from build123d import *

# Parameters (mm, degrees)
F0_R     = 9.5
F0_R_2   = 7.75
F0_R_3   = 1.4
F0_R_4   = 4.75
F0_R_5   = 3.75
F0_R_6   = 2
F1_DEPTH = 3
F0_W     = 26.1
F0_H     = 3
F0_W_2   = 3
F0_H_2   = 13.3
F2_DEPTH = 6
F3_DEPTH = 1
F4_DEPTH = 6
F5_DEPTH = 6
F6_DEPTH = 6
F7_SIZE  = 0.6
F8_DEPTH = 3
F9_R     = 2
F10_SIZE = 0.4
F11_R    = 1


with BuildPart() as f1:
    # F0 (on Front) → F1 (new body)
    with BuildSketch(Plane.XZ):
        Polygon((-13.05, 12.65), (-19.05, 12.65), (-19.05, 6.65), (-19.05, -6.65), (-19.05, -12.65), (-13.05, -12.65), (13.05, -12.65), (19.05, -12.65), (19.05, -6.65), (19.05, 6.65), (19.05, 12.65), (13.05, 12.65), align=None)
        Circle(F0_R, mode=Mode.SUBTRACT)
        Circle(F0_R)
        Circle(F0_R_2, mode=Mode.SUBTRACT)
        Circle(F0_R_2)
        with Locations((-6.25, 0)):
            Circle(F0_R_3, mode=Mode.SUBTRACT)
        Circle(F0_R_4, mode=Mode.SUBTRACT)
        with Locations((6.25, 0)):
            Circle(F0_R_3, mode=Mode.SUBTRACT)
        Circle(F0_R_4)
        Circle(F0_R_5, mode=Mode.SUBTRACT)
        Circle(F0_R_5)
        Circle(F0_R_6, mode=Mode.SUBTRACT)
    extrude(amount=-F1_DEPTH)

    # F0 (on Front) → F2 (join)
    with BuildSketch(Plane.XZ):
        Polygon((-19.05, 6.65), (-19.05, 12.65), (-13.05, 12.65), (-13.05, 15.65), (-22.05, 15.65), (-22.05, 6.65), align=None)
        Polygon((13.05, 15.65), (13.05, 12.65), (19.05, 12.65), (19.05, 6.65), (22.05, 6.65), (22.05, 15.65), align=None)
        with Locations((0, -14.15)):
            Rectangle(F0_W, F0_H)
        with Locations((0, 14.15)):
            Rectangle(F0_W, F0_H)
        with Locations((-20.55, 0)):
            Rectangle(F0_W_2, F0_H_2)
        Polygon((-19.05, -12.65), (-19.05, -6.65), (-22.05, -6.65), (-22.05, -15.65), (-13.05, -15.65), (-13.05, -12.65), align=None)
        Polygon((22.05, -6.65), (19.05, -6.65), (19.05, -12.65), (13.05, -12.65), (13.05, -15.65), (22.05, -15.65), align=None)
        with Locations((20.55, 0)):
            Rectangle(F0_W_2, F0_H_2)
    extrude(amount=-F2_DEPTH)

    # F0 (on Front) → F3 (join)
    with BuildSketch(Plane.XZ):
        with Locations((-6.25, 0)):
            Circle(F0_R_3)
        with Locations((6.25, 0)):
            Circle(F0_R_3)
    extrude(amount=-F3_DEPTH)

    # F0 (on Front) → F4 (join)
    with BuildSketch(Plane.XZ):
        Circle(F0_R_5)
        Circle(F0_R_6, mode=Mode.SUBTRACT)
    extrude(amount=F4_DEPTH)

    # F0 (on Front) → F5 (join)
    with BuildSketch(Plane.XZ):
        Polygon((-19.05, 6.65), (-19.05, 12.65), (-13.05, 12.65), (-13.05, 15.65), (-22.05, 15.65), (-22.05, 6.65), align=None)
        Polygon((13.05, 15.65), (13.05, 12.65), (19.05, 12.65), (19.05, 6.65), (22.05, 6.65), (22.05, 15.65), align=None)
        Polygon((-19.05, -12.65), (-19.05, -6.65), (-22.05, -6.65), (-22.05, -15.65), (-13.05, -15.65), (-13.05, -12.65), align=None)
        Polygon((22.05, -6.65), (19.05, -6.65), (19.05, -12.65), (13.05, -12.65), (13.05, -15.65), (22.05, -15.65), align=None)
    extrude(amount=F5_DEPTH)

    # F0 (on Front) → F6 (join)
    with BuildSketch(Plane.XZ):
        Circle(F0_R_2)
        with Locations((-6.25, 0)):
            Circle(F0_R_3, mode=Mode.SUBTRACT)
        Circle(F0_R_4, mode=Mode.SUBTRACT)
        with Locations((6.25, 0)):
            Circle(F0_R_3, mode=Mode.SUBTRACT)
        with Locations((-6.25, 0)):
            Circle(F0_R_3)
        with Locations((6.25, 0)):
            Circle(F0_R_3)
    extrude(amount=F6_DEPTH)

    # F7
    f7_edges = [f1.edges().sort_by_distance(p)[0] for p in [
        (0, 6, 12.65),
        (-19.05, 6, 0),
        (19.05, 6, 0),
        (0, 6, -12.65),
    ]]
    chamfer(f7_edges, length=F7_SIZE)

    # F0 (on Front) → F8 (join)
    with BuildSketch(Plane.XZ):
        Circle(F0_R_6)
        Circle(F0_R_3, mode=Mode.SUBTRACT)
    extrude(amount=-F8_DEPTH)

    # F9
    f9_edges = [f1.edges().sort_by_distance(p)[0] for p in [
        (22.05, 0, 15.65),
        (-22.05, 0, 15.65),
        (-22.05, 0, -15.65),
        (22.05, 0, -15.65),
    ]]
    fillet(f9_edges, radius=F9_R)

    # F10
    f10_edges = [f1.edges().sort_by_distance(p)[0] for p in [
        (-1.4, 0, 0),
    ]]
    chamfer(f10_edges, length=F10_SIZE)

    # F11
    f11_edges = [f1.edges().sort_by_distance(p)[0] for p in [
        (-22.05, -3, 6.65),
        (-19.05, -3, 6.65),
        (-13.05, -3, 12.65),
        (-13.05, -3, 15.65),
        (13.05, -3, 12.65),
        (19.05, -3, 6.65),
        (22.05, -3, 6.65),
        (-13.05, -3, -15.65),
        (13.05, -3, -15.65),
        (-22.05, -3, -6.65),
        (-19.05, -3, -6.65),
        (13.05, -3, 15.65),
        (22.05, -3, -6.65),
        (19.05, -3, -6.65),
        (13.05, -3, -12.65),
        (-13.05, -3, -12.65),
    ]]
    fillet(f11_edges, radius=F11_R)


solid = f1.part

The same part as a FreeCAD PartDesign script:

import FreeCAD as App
import Part
import Sketcher
from FreeCAD import Vector


def edges_at(feature, points):
    """Names of the edges that pass closest to the given points."""
    edges = feature.Shape.Edges
    near = lambda p: min(range(len(edges)), key=lambda i: edges[i].distToShape(Part.Vertex(*p))[0])
    return sorted({f"Edge{near(p) + 1}" for p in points})

doc = App.newDocument("Part")
params = doc.addObject("Spreadsheet::Sheet", "Params")
for row, (alias, value) in enumerate([
    ("sketch1_diameter", "4 mm"),
    ("sketch1_diameter2", "2.8 mm"),
    ("sketch1_width", "38.1 mm"),
    ("sketch1_height", "25.3 mm"),
    ("pad1_length", "3 mm"),
    ("sketch2_width", "44.1 mm"),
    ("sketch2_width2", "38.1 mm"),
    ("sketch2_height", "31.3 mm"),
    ("sketch2_height2", "25.3 mm"),
    ("pad2_length", "6 mm"),
    ("sketch3_diameter", "2.8 mm"),
    ("pad3_length", "1 mm"),
    ("sketch4_diameter", "4 mm"),
    ("sketch4_diameter2", "7.5 mm"),
    ("pad4_length", "6 mm"),
    ("sketch5_width", "6 mm"),
    ("sketch5_width2", "9 mm"),
    ("pad5_length", "6 mm"),
    ("sketch6_diameter", "15.5 mm"),
    ("sketch6_diameter2", "9.5 mm"),
    ("pad6_length", "6 mm"),
    ("chamfer_size", "0.6 mm"),
    ("sketch7_diameter", "4 mm"),
    ("sketch7_diameter2", "2.8 mm"),
    ("pad7_length", "3 mm"),
    ("fillet_radius", "2 mm"),
    ("chamfer2_size", "0.4 mm"),
    ("fillet2_radius", "1 mm"),
], start=1):
    params.set(f"A{row}", alias)
    params.set(f"B{row}", "=" + value)
    params.setAlias(f"B{row}", alias)

body = doc.addObject("PartDesign::Body", "Body")

# Sketch on XZ plane
sketch1 = body.newObject("Sketcher::SketchObject", "Sketch")
sketch1.AttachmentSupport = (doc.getObject("XZ_Plane"), [""])
sketch1.MapMode = "FlatFace"
sketch1.addGeometry([
    Part.LineSegment(Vector(-19.1, 12.7, 0), Vector(-19.1, -12.7, 0)),  # 0
    Part.LineSegment(Vector(-19.1, -12.7, 0), Vector(19.1, -12.7, 0)),  # 1
    Part.LineSegment(Vector(19.1, -12.7, 0), Vector(19.1, 12.7, 0)),  # 2
    Part.LineSegment(Vector(19.1, 12.7, 0), Vector(-19.1, 12.7, 0)),  # 3
    Part.Circle(Vector(-6.2, 0, 0), Vector(0, 0, 1), 1.4),  # 4
    Part.Circle(Vector(0, 0, 0), Vector(0, 0, 1), 2),  # 5
    Part.Circle(Vector(6.2, 0, 0), Vector(0, 0, 1), 1.4),  # 6
], False)
sketch1.addConstraint([
    Sketcher.Constraint("Coincident", 0, 2, 1, 1),
    Sketcher.Constraint("Coincident", 1, 2, 2, 1),
    Sketcher.Constraint("Coincident", 2, 2, 3, 1),
    Sketcher.Constraint("Coincident", 3, 2, 0, 1),
    Sketcher.Constraint("Vertical", 0),
    Sketcher.Constraint("Horizontal", 1),
    Sketcher.Constraint("Vertical", 2),
    Sketcher.Constraint("Horizontal", 3),
    Sketcher.Constraint("Coincident", 5, 3, -1, 1),
    Sketcher.Constraint("Equal", 4, 6),
    Sketcher.Constraint("Symmetric", 4, 3, 6, 3, -1, 1),
    Sketcher.Constraint("Symmetric", 0, 2, 2, 2, -1, 1),
    Sketcher.Constraint("PointOnObject", 4, 3, -1),
    Sketcher.Constraint("Diameter", 5, 4.0),
    Sketcher.Constraint("Diameter", 4, 2.8),
    Sketcher.Constraint("DistanceX", 1, 1, 1, 2, 38.1),
    Sketcher.Constraint("DistanceY", 0, 2, 0, 1, 25.3),
    Sketcher.Constraint("DistanceX", 4, 3, 6, 3, 12.5),
])
sketch1.setExpression("Constraints[13]", "Params.sketch1_diameter")
sketch1.setExpression("Constraints[14]", "Params.sketch1_diameter2")
sketch1.setExpression("Constraints[15]", "Params.sketch1_width")
sketch1.setExpression("Constraints[16]", "Params.sketch1_height")
pad1 = body.newObject("PartDesign::Pad", "Pad")
pad1.Profile = sketch1
pad1.setExpression("Length", "Params.pad1_length")
pad1.Reversed = True

# Sketch on XZ plane
sketch2 = body.newObject("Sketcher::SketchObject", "Sketch001")
sketch2.AttachmentSupport = (doc.getObject("XZ_Plane"), [""])
sketch2.MapMode = "FlatFace"
sketch2.addGeometry([
    Part.LineSegment(Vector(22, 16, 0), Vector(-22, 16, 0)),  # 0
    Part.LineSegment(Vector(-22, 16, 0), Vector(-22, -16, 0)),  # 1
    Part.LineSegment(Vector(-22, -16, 0), Vector(22, -16, 0)),  # 2
    Part.LineSegment(Vector(22, -16, 0), Vector(22, 16, 0)),  # 3
    Part.LineSegment(Vector(-19, 13, 0), Vector(19, 13, 0)),  # 4
    Part.LineSegment(Vector(19, 13, 0), Vector(19, -13, 0)),  # 5
    Part.LineSegment(Vector(19, -13, 0), Vector(-19, -13, 0)),  # 6
    Part.LineSegment(Vector(-19, -13, 0), Vector(-19, 13, 0)),  # 7
], False)
sketch2.addConstraint([
    Sketcher.Constraint("Coincident", 0, 2, 1, 1),
    Sketcher.Constraint("Coincident", 1, 2, 2, 1),
    Sketcher.Constraint("Coincident", 2, 2, 3, 1),
    Sketcher.Constraint("Coincident", 3, 2, 0, 1),
    Sketcher.Constraint("Coincident", 4, 2, 5, 1),
    Sketcher.Constraint("Coincident", 5, 2, 6, 1),
    Sketcher.Constraint("Coincident", 6, 2, 7, 1),
    Sketcher.Constraint("Coincident", 7, 2, 4, 1),
    Sketcher.Constraint("Horizontal", 0),
    Sketcher.Constraint("Vertical", 1),
    Sketcher.Constraint("Horizontal", 2),
    Sketcher.Constraint("Vertical", 3),
    Sketcher.Constraint("Horizontal", 4),
    Sketcher.Constraint("Vertical", 5),
    Sketcher.Constraint("Horizontal", 6),
    Sketcher.Constraint("Vertical", 7),
    Sketcher.Constraint("Symmetric", 0, 2, 2, 2, -1, 1),
    Sketcher.Constraint("Symmetric", 4, 2, 6, 2, -1, 1),
    Sketcher.Constraint("DistanceX", 0, 2, 0, 1, 44.1),
    Sketcher.Constraint("DistanceX", 4, 1, 4, 2, 38.1),
    Sketcher.Constraint("DistanceY", 1, 2, 1, 1, 31.3),
    Sketcher.Constraint("DistanceY", 5, 2, 5, 1, 25.3),
])
sketch2.setExpression("Constraints[18]", "Params.sketch2_width")
sketch2.setExpression("Constraints[19]", "Params.sketch2_width2")
sketch2.setExpression("Constraints[20]", "Params.sketch2_height")
sketch2.setExpression("Constraints[21]", "Params.sketch2_height2")
pad2 = body.newObject("PartDesign::Pad", "Pad001")
pad2.Profile = sketch2
pad2.setExpression("Length", "Params.pad2_length")
pad2.Reversed = True

# Sketch on XZ plane
sketch3 = body.newObject("Sketcher::SketchObject", "Sketch002")
sketch3.AttachmentSupport = (doc.getObject("XZ_Plane"), [""])
sketch3.MapMode = "FlatFace"
sketch3.addGeometry([
    Part.Circle(Vector(-6.2, 0, 0), Vector(0, 0, 1), 1.4),
    Part.Circle(Vector(6.2, 0, 0), Vector(0, 0, 1), 1.4),
], False)
sketch3.addConstraint([
    Sketcher.Constraint("Equal", 0, 1),
    Sketcher.Constraint("Symmetric", 0, 3, 1, 3, -1, 1),
    Sketcher.Constraint("PointOnObject", 0, 3, -1),
    Sketcher.Constraint("Diameter", 0, 2.8),
    Sketcher.Constraint("DistanceX", 0, 3, 1, 3, 12.5),
])
sketch3.setExpression("Constraints[3]", "Params.sketch3_diameter")
pad3 = body.newObject("PartDesign::Pad", "Pad002")
pad3.Profile = sketch3
pad3.setExpression("Length", "Params.pad3_length")
pad3.Reversed = True

# Sketch on XZ plane
sketch4 = body.newObject("Sketcher::SketchObject", "Sketch003")
sketch4.AttachmentSupport = (doc.getObject("XZ_Plane"), [""])
sketch4.MapMode = "FlatFace"
sketch4.addGeometry([
    Part.Circle(Vector(0, 0, 0), Vector(0, 0, 1), 3.8),
    Part.Circle(Vector(0, 0, 0), Vector(0, 0, 1), 2),
], False)
sketch4.addConstraint([
    Sketcher.Constraint("Coincident", 0, 3, -1, 1),
    Sketcher.Constraint("Coincident", 1, 3, -1, 1),
    Sketcher.Constraint("Diameter", 1, 4.0),
    Sketcher.Constraint("Diameter", 0, 7.5),
])
sketch4.setExpression("Constraints[2]", "Params.sketch4_diameter")
sketch4.setExpression("Constraints[3]", "Params.sketch4_diameter2")
pad4 = body.newObject("PartDesign::Pad", "Pad003")
pad4.Profile = sketch4
pad4.setExpression("Length", "Params.pad4_length")

# Sketch on XZ plane
sketch5 = body.newObject("Sketcher::SketchObject", "Sketch004")
sketch5.AttachmentSupport = (doc.getObject("XZ_Plane"), [""])
sketch5.MapMode = "FlatFace"
sketch5.addGeometry([
    Part.LineSegment(Vector(-19.1, 6.7, 0), Vector(-19.1, 12.7, 0)),  # 0
    Part.LineSegment(Vector(-19.1, 12.7, 0), Vector(-13.1, 12.7, 0)),  # 1
    Part.LineSegment(Vector(-13.1, 12.7, 0), Vector(-13.1, 15.7, 0)),  # 2
    Part.LineSegment(Vector(-13.1, 15.7, 0), Vector(-22.1, 15.7, 0)),  # 3
    Part.LineSegment(Vector(-22.1, 15.7, 0), Vector(-22.1, 6.7, 0)),  # 4
    Part.LineSegment(Vector(-22.1, 6.7, 0), Vector(-19.1, 6.7, 0)),  # 5
    Part.LineSegment(Vector(13.1, 15.7, 0), Vector(13.1, 12.7, 0)),  # 6
    Part.LineSegment(Vector(13.1, 12.7, 0), Vector(19.1, 12.7, 0)),  # 7
    Part.LineSegment(Vector(19.1, 12.7, 0), Vector(19.1, 6.7, 0)),  # 8
    Part.LineSegment(Vector(19.1, 6.7, 0), Vector(22.1, 6.7, 0)),  # 9
    Part.LineSegment(Vector(22.1, 6.7, 0), Vector(22.1, 15.7, 0)),  # 10
    Part.LineSegment(Vector(22.1, 15.7, 0), Vector(13.1, 15.7, 0)),  # 11
    Part.LineSegment(Vector(-19.1, -12.7, 0), Vector(-19.1, -6.7, 0)),  # 12
    Part.LineSegment(Vector(-19.1, -6.7, 0), Vector(-22.1, -6.7, 0)),  # 13
    Part.LineSegment(Vector(-22.1, -6.7, 0), Vector(-22.1, -15.7, 0)),  # 14
    Part.LineSegment(Vector(-22.1, -15.7, 0), Vector(-13.1, -15.7, 0)),  # 15
    Part.LineSegment(Vector(-13.1, -15.7, 0), Vector(-13.1, -12.7, 0)),  # 16
    Part.LineSegment(Vector(-13.1, -12.7, 0), Vector(-19.1, -12.7, 0)),  # 17
    Part.LineSegment(Vector(22.1, -6.7, 0), Vector(19.1, -6.7, 0)),  # 18
    Part.LineSegment(Vector(19.1, -6.7, 0), Vector(19.1, -12.7, 0)),  # 19
    Part.LineSegment(Vector(19.1, -12.7, 0), Vector(13.1, -12.7, 0)),  # 20
    Part.LineSegment(Vector(13.1, -12.7, 0), Vector(13.1, -15.7, 0)),  # 21
    Part.LineSegment(Vector(13.1, -15.7, 0), Vector(22.1, -15.7, 0)),  # 22
    Part.LineSegment(Vector(22.1, -15.7, 0), Vector(22.1, -6.7, 0)),  # 23
], False)
sketch5.addConstraint([
    Sketcher.Constraint("Coincident", 0, 2, 1, 1),
    Sketcher.Constraint("Coincident", 1, 2, 2, 1),
    Sketcher.Constraint("Coincident", 2, 2, 3, 1),
    Sketcher.Constraint("Coincident", 3, 2, 4, 1),
    Sketcher.Constraint("Coincident", 4, 2, 5, 1),
    Sketcher.Constraint("Coincident", 5, 2, 0, 1),
    Sketcher.Constraint("Coincident", 6, 2, 7, 1),
    Sketcher.Constraint("Coincident", 7, 2, 8, 1),
    Sketcher.Constraint("Coincident", 8, 2, 9, 1),
    Sketcher.Constraint("Coincident", 9, 2, 10, 1),
    Sketcher.Constraint("Coincident", 10, 2, 11, 1),
    Sketcher.Constraint("Coincident", 11, 2, 6, 1),
    Sketcher.Constraint("Coincident", 12, 2, 13, 1),
    Sketcher.Constraint("Coincident", 13, 2, 14, 1),
    Sketcher.Constraint("Coincident", 14, 2, 15, 1),
    Sketcher.Constraint("Coincident", 15, 2, 16, 1),
    Sketcher.Constraint("Coincident", 16, 2, 17, 1),
    Sketcher.Constraint("Coincident", 17, 2, 12, 1),
    Sketcher.Constraint("Coincident", 18, 2, 19, 1),
    Sketcher.Constraint("Coincident", 19, 2, 20, 1),
    Sketcher.Constraint("Coincident", 20, 2, 21, 1),
    Sketcher.Constraint("Coincident", 21, 2, 22, 1),
    Sketcher.Constraint("Coincident", 22, 2, 23, 1),
    Sketcher.Constraint("Coincident", 23, 2, 18, 1),
    Sketcher.Constraint("Vertical", 0),
    Sketcher.Constraint("Horizontal", 1),
    Sketcher.Constraint("Vertical", 2),
    Sketcher.Constraint("Horizontal", 3),
    Sketcher.Constraint("Vertical", 4),
    Sketcher.Constraint("Horizontal", 5),
    Sketcher.Constraint("Vertical", 6),
    Sketcher.Constraint("Horizontal", 7),
    Sketcher.Constraint("Vertical", 8),
    Sketcher.Constraint("Horizontal", 9),
    Sketcher.Constraint("Vertical", 10),
    Sketcher.Constraint("Horizontal", 11),
    Sketcher.Constraint("Vertical", 12),
    Sketcher.Constraint("Horizontal", 13),
    Sketcher.Constraint("Vertical", 14),
    Sketcher.Constraint("Horizontal", 15),
    Sketcher.Constraint("Vertical", 16),
    Sketcher.Constraint("Horizontal", 17),
    Sketcher.Constraint("Horizontal", 18),
    Sketcher.Constraint("Vertical", 19),
    Sketcher.Constraint("Horizontal", 20),
    Sketcher.Constraint("Vertical", 21),
    Sketcher.Constraint("Horizontal", 22),
    Sketcher.Constraint("Vertical", 23),
    Sketcher.Constraint("Symmetric", 8, 2, 12, 2, -1, 1),
    Sketcher.Constraint("Symmetric", 10, 2, 14, 2, -1, 1),
    Sketcher.Constraint("Symmetric", 6, 2, 16, 2, -1, 1),
    Sketcher.Constraint("Symmetric", 5, 2, 18, 2, -1, 1),
    Sketcher.Constraint("Symmetric", 1, 2, 20, 2, -1, 1),
    Sketcher.Constraint("Symmetric", 3, 2, 22, 2, -1, 1),
    Sketcher.Constraint("Symmetric", 1, 2, 6, 2, -2),
    Sketcher.Constraint("Symmetric", 5, 2, 8, 2, -2),
    Sketcher.Constraint("Symmetric", 3, 2, 10, 2, -2),
    Sketcher.Constraint("Equal", 20, 0),
    Sketcher.Constraint("Equal", 18, 2),
    Sketcher.Constraint("DistanceX", 1, 1, 1, 2, 6.0),
    Sketcher.Constraint("DistanceX", 3, 2, 3, 1, 9.0),
    Sketcher.Constraint("DistanceX", 1, 2, 6, 2, 26.1),
    Sketcher.Constraint("DistanceY", 12, 2, 5, 2, 13.3),
])
sketch5.setExpression("Constraints[59]", "Params.sketch5_width")
sketch5.setExpression("Constraints[60]", "Params.sketch5_width2")
pad5 = body.newObject("PartDesign::Pad", "Pad004")
pad5.Profile = sketch5
pad5.setExpression("Length", "Params.pad5_length")

# Sketch on XZ plane
sketch6 = body.newObject("Sketcher::SketchObject", "Sketch005")
sketch6.AttachmentSupport = (doc.getObject("XZ_Plane"), [""])
sketch6.MapMode = "FlatFace"
sketch6.addGeometry([
    Part.Circle(Vector(0, 0, 0), Vector(0, 0, 1), 7.8),
    Part.Circle(Vector(0, 0, 0), Vector(0, 0, 1), 4.8),
], False)
sketch6.addConstraint([
    Sketcher.Constraint("Coincident", 0, 3, -1, 1),
    Sketcher.Constraint("Coincident", 1, 3, -1, 1),
    Sketcher.Constraint("Diameter", 0, 15.5),
    Sketcher.Constraint("Diameter", 1, 9.5),
])
sketch6.setExpression("Constraints[2]", "Params.sketch6_diameter")
sketch6.setExpression("Constraints[3]", "Params.sketch6_diameter2")
pad6 = body.newObject("PartDesign::Pad", "Pad005")
pad6.Profile = sketch6
pad6.setExpression("Length", "Params.pad6_length")
doc.recompute()

chamfer = body.newObject("PartDesign::Chamfer", "Chamfer")
chamfer.Base = (pad6, edges_at(pad6, [
    (0, 6, 12.65),
    (-19.05, 6, 0),
    (19.05, 6, 0),
    (0, 6, -12.65),
]))
chamfer.setExpression("Size", "Params.chamfer_size")

# Sketch on XZ plane
sketch7 = body.newObject("Sketcher::SketchObject", "Sketch006")
sketch7.AttachmentSupport = (doc.getObject("XZ_Plane"), [""])
sketch7.MapMode = "FlatFace"
sketch7.addGeometry([
    Part.Circle(Vector(0, 0, 0), Vector(0, 0, 1), 2),
    Part.Circle(Vector(0, 0, 0), Vector(0, 0, 1), 1.4),
], False)
sketch7.addConstraint([
    Sketcher.Constraint("Coincident", 0, 3, -1, 1),
    Sketcher.Constraint("Coincident", 1, 3, -1, 1),
    Sketcher.Constraint("Diameter", 0, 4.0),
    Sketcher.Constraint("Diameter", 1, 2.8),
])
sketch7.setExpression("Constraints[2]", "Params.sketch7_diameter")
sketch7.setExpression("Constraints[3]", "Params.sketch7_diameter2")
pad7 = body.newObject("PartDesign::Pad", "Pad006")
pad7.Profile = sketch7
pad7.setExpression("Length", "Params.pad7_length")
pad7.Reversed = True
doc.recompute()

fillet = body.newObject("PartDesign::Fillet", "Fillet")
fillet.Base = (pad7, edges_at(pad7, [
    (22.05, 0, 15.65),
    (-22.05, 0, 15.65),
    (-22.05, 0, -15.65),
    (22.05, 0, -15.65),
]))
fillet.setExpression("Radius", "Params.fillet_radius")
doc.recompute()

chamfer2 = body.newObject("PartDesign::Chamfer", "Chamfer001")
chamfer2.Base = (fillet, edges_at(fillet, [(-1.4, 0, 0)]))
chamfer2.setExpression("Size", "Params.chamfer2_size")
doc.recompute()

fillet2 = body.newObject("PartDesign::Fillet", "Fillet001")
fillet2.Base = (chamfer2, edges_at(chamfer2, [
    (-22.05, -3, 6.65),
    (-19.05, -3, 6.65),
    (-13.05, -3, 12.65),
    (-13.05, -3, 15.65),
    (13.05, -3, 12.65),
    (19.05, -3, 6.65),
    (22.05, -3, 6.65),
    (-13.05, -3, -15.65),
    (13.05, -3, -15.65),
    (-22.05, -3, -6.65),
    (-19.05, -3, -6.65),
    (13.05, -3, 15.65),
    (22.05, -3, -6.65),
    (19.05, -3, -6.65),
    (13.05, -3, -12.65),
    (-13.05, -3, -12.65),
]))
fillet2.setExpression("Radius", "Params.fillet2_radius")

doc.recompute()
